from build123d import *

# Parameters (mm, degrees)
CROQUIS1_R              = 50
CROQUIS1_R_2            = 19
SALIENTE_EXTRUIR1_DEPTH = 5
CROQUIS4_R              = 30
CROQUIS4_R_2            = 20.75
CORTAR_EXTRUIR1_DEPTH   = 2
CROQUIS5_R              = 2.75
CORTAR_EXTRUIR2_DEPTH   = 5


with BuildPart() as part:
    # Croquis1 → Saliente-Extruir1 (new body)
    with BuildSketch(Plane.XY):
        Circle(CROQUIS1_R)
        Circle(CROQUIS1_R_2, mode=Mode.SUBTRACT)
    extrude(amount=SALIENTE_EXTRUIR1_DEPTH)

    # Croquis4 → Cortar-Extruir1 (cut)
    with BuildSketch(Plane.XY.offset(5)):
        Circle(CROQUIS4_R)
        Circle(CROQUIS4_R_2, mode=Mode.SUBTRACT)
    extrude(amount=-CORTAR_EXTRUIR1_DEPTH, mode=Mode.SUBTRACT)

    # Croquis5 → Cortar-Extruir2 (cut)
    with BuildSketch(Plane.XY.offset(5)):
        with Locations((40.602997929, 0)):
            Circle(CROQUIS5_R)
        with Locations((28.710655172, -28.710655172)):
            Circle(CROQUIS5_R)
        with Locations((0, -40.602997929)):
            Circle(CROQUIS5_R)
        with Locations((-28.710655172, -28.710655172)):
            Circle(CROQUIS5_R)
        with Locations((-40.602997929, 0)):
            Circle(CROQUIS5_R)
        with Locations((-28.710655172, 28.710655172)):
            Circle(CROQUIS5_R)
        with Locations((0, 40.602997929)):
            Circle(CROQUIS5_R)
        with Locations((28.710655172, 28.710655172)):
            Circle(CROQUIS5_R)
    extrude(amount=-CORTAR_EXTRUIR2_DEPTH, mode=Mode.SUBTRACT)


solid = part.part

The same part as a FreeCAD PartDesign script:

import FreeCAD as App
import Part
import Sketcher

V = App.Vector
Q = App.Units.Quantity

doc = App.newDocument("Part")
body = doc.addObject("PartDesign::Body", "Body")

# Sketch on XY plane
sketch1 = body.newObject("Sketcher::SketchObject", "Sketch")
sketch1.AttachmentSupport = (doc.getObject("XY_Plane"), [""])
sketch1.MapMode = "FlatFace"
sketch1.addGeometry(Part.Circle(V(0, 0, 0), V(0, 0, 1), 50), False)
sketch1.addGeometry(Part.Circle(V(0, 0, 0), V(0, 0, 1), 19), False)
sketch1.addConstraint(Sketcher.Constraint("Coincident", 0, 3, -1, 1))
sketch1.addConstraint(Sketcher.Constraint("Coincident", 1, 3, -1, 1))
sketch1.addConstraint(Sketcher.Constraint("Diameter", 0, Q("100 mm")))
sketch1.addConstraint(Sketcher.Constraint("Diameter", 1, Q("38 mm")))
pad1 = body.newObject("PartDesign::Pad", "Pad")
pad1.Profile = sketch1
pad1.Length = 5

# Sketch on XY plane
sketch2 = body.newObject("Sketcher::SketchObject", "Sketch001")
sketch2.AttachmentSupport = (doc.getObject("XY_Plane"), [""])
sketch2.MapMode = "FlatFace"
sketch2.AttachmentOffset = App.Placement(V(0, 0, 5), App.Rotation())
sketch2.addGeometry(Part.Circle(V(0, 0, 0), V(0, 0, 1), 30), False)
sketch2.addGeometry(Part.Circle(V(0, 0, 0), V(0, 0, 1), 20.75), False)
sketch2.addConstraint(Sketcher.Constraint("Coincident", 0, 3, -1, 1))
sketch2.addConstraint(Sketcher.Constraint("Coincident", 1, 3, -1, 1))
sketch2.addConstraint(Sketcher.Constraint("Diameter", 0, Q("60 mm")))
sketch2.addConstraint(Sketcher.Constraint("Diameter", 1, Q("41.5 mm")))
pocket1 = body.newObject("PartDesign::Pocket", "Pocket")
pocket1.Profile = sketch2
pocket1.Length = 2

# Sketch on XY plane
sketch3 = body.newObject("Sketcher::SketchObject", "Sketch002")
sketch3.AttachmentSupport = (doc.getObject("XY_Plane"), [""])
sketch3.MapMode = "FlatFace"
sketch3.AttachmentOffset = App.Placement(V(0, 0, 5), App.Rotation())
sketch3.addGeometry(Part.Circle(V(40.602998, 0, 0), V(0, 0, 1), 2.75), False)
sketch3.addGeometry(Part.Circle(V(28.710655, -28.710655, 0), V(0, 0, 1), 2.75), False)
sketch3.addGeometry(Part.Circle(V(0, -40.602998, 0), V(0, 0, 1), 2.75), False)
sketch3.addGeometry(Part.Circle(V(-28.710655, -28.710655, 0), V(0, 0, 1), 2.75), False)
sketch3.addGeometry(Part.Circle(V(-40.602998, 0, 0), V(0, 0, 1), 2.75), False)
sketch3.addGeometry(Part.Circle(V(-28.710655, 28.710655, 0), V(0, 0, 1), 2.75), False)
sketch3.addGeometry(Part.Circle(V(0, 40.602998, 0), V(0, 0, 1), 2.75), False)
sketch3.addGeometry(Part.Circle(V(28.710655, 28.710655, 0), V(0, 0, 1), 2.75), False)
sketch3.addConstraint(Sketcher.Constraint("Equal", 0, 1))
sketch3.addConstraint(Sketcher.Constraint("Equal", 1, 2))
sketch3.addConstraint(Sketcher.Constraint("Equal", 2, 3))
sketch3.addConstraint(Sketcher.Constraint("Equal", 3, 4))
sketch3.addConstraint(Sketcher.Constraint("Equal", 4, 5))
sketch3.addConstraint(Sketcher.Constraint("Equal", 5, 6))
sketch3.addConstraint(Sketcher.Constraint("Equal", 6, 7))
sketch3.addConstraint(Sketcher.Constraint("Symmetric", 0, 3, 4, 3, -1, 1))
sketch3.addConstraint(Sketcher.Constraint("Symmetric", 1, 3, 5, 3, -1, 1))
sketch3.addConstraint(Sketcher.Constraint("Symmetric", 2, 3, 6, 3, -1, 1))
sketch3.addConstraint(Sketcher.Constraint("Symmetric", 3, 3, 7, 3, -1, 1))
sketch3.addConstraint(Sketcher.Constraint("Symmetric", 1, 3, 3, 3, -2))
sketch3.addConstraint(Sketcher.Constraint("PointOnObject", 0, 3, -1))
sketch3.addConstraint(Sketcher.Constraint("PointOnObject", 2, 3, -2))
sketch3.addConstraint(Sketcher.Constraint("Diameter", 0, Q("5.5 mm")))
sketch3.addConstraint(Sketcher.Constraint("DistanceX", 3, 3, 1, 3, Q("57.42131 mm")))
sketch3.addConstraint(Sketcher.Constraint("DistanceY", 3, 3, 5, 3, Q("57.42131 mm")))
sketch3.addConstraint(Sketcher.Constraint("DistanceX", -1, 1, 0, 3, Q("40.602998 mm")))
sketch3.addConstraint(Sketcher.Constraint("DistanceY", 2, 3, -1, 1, Q("40.602998 mm")))
pocket2 = body.newObject("PartDesign::Pocket", "Pocket001")
pocket2.Profile = sketch3
pocket2.Length = 5

doc.recompute()
